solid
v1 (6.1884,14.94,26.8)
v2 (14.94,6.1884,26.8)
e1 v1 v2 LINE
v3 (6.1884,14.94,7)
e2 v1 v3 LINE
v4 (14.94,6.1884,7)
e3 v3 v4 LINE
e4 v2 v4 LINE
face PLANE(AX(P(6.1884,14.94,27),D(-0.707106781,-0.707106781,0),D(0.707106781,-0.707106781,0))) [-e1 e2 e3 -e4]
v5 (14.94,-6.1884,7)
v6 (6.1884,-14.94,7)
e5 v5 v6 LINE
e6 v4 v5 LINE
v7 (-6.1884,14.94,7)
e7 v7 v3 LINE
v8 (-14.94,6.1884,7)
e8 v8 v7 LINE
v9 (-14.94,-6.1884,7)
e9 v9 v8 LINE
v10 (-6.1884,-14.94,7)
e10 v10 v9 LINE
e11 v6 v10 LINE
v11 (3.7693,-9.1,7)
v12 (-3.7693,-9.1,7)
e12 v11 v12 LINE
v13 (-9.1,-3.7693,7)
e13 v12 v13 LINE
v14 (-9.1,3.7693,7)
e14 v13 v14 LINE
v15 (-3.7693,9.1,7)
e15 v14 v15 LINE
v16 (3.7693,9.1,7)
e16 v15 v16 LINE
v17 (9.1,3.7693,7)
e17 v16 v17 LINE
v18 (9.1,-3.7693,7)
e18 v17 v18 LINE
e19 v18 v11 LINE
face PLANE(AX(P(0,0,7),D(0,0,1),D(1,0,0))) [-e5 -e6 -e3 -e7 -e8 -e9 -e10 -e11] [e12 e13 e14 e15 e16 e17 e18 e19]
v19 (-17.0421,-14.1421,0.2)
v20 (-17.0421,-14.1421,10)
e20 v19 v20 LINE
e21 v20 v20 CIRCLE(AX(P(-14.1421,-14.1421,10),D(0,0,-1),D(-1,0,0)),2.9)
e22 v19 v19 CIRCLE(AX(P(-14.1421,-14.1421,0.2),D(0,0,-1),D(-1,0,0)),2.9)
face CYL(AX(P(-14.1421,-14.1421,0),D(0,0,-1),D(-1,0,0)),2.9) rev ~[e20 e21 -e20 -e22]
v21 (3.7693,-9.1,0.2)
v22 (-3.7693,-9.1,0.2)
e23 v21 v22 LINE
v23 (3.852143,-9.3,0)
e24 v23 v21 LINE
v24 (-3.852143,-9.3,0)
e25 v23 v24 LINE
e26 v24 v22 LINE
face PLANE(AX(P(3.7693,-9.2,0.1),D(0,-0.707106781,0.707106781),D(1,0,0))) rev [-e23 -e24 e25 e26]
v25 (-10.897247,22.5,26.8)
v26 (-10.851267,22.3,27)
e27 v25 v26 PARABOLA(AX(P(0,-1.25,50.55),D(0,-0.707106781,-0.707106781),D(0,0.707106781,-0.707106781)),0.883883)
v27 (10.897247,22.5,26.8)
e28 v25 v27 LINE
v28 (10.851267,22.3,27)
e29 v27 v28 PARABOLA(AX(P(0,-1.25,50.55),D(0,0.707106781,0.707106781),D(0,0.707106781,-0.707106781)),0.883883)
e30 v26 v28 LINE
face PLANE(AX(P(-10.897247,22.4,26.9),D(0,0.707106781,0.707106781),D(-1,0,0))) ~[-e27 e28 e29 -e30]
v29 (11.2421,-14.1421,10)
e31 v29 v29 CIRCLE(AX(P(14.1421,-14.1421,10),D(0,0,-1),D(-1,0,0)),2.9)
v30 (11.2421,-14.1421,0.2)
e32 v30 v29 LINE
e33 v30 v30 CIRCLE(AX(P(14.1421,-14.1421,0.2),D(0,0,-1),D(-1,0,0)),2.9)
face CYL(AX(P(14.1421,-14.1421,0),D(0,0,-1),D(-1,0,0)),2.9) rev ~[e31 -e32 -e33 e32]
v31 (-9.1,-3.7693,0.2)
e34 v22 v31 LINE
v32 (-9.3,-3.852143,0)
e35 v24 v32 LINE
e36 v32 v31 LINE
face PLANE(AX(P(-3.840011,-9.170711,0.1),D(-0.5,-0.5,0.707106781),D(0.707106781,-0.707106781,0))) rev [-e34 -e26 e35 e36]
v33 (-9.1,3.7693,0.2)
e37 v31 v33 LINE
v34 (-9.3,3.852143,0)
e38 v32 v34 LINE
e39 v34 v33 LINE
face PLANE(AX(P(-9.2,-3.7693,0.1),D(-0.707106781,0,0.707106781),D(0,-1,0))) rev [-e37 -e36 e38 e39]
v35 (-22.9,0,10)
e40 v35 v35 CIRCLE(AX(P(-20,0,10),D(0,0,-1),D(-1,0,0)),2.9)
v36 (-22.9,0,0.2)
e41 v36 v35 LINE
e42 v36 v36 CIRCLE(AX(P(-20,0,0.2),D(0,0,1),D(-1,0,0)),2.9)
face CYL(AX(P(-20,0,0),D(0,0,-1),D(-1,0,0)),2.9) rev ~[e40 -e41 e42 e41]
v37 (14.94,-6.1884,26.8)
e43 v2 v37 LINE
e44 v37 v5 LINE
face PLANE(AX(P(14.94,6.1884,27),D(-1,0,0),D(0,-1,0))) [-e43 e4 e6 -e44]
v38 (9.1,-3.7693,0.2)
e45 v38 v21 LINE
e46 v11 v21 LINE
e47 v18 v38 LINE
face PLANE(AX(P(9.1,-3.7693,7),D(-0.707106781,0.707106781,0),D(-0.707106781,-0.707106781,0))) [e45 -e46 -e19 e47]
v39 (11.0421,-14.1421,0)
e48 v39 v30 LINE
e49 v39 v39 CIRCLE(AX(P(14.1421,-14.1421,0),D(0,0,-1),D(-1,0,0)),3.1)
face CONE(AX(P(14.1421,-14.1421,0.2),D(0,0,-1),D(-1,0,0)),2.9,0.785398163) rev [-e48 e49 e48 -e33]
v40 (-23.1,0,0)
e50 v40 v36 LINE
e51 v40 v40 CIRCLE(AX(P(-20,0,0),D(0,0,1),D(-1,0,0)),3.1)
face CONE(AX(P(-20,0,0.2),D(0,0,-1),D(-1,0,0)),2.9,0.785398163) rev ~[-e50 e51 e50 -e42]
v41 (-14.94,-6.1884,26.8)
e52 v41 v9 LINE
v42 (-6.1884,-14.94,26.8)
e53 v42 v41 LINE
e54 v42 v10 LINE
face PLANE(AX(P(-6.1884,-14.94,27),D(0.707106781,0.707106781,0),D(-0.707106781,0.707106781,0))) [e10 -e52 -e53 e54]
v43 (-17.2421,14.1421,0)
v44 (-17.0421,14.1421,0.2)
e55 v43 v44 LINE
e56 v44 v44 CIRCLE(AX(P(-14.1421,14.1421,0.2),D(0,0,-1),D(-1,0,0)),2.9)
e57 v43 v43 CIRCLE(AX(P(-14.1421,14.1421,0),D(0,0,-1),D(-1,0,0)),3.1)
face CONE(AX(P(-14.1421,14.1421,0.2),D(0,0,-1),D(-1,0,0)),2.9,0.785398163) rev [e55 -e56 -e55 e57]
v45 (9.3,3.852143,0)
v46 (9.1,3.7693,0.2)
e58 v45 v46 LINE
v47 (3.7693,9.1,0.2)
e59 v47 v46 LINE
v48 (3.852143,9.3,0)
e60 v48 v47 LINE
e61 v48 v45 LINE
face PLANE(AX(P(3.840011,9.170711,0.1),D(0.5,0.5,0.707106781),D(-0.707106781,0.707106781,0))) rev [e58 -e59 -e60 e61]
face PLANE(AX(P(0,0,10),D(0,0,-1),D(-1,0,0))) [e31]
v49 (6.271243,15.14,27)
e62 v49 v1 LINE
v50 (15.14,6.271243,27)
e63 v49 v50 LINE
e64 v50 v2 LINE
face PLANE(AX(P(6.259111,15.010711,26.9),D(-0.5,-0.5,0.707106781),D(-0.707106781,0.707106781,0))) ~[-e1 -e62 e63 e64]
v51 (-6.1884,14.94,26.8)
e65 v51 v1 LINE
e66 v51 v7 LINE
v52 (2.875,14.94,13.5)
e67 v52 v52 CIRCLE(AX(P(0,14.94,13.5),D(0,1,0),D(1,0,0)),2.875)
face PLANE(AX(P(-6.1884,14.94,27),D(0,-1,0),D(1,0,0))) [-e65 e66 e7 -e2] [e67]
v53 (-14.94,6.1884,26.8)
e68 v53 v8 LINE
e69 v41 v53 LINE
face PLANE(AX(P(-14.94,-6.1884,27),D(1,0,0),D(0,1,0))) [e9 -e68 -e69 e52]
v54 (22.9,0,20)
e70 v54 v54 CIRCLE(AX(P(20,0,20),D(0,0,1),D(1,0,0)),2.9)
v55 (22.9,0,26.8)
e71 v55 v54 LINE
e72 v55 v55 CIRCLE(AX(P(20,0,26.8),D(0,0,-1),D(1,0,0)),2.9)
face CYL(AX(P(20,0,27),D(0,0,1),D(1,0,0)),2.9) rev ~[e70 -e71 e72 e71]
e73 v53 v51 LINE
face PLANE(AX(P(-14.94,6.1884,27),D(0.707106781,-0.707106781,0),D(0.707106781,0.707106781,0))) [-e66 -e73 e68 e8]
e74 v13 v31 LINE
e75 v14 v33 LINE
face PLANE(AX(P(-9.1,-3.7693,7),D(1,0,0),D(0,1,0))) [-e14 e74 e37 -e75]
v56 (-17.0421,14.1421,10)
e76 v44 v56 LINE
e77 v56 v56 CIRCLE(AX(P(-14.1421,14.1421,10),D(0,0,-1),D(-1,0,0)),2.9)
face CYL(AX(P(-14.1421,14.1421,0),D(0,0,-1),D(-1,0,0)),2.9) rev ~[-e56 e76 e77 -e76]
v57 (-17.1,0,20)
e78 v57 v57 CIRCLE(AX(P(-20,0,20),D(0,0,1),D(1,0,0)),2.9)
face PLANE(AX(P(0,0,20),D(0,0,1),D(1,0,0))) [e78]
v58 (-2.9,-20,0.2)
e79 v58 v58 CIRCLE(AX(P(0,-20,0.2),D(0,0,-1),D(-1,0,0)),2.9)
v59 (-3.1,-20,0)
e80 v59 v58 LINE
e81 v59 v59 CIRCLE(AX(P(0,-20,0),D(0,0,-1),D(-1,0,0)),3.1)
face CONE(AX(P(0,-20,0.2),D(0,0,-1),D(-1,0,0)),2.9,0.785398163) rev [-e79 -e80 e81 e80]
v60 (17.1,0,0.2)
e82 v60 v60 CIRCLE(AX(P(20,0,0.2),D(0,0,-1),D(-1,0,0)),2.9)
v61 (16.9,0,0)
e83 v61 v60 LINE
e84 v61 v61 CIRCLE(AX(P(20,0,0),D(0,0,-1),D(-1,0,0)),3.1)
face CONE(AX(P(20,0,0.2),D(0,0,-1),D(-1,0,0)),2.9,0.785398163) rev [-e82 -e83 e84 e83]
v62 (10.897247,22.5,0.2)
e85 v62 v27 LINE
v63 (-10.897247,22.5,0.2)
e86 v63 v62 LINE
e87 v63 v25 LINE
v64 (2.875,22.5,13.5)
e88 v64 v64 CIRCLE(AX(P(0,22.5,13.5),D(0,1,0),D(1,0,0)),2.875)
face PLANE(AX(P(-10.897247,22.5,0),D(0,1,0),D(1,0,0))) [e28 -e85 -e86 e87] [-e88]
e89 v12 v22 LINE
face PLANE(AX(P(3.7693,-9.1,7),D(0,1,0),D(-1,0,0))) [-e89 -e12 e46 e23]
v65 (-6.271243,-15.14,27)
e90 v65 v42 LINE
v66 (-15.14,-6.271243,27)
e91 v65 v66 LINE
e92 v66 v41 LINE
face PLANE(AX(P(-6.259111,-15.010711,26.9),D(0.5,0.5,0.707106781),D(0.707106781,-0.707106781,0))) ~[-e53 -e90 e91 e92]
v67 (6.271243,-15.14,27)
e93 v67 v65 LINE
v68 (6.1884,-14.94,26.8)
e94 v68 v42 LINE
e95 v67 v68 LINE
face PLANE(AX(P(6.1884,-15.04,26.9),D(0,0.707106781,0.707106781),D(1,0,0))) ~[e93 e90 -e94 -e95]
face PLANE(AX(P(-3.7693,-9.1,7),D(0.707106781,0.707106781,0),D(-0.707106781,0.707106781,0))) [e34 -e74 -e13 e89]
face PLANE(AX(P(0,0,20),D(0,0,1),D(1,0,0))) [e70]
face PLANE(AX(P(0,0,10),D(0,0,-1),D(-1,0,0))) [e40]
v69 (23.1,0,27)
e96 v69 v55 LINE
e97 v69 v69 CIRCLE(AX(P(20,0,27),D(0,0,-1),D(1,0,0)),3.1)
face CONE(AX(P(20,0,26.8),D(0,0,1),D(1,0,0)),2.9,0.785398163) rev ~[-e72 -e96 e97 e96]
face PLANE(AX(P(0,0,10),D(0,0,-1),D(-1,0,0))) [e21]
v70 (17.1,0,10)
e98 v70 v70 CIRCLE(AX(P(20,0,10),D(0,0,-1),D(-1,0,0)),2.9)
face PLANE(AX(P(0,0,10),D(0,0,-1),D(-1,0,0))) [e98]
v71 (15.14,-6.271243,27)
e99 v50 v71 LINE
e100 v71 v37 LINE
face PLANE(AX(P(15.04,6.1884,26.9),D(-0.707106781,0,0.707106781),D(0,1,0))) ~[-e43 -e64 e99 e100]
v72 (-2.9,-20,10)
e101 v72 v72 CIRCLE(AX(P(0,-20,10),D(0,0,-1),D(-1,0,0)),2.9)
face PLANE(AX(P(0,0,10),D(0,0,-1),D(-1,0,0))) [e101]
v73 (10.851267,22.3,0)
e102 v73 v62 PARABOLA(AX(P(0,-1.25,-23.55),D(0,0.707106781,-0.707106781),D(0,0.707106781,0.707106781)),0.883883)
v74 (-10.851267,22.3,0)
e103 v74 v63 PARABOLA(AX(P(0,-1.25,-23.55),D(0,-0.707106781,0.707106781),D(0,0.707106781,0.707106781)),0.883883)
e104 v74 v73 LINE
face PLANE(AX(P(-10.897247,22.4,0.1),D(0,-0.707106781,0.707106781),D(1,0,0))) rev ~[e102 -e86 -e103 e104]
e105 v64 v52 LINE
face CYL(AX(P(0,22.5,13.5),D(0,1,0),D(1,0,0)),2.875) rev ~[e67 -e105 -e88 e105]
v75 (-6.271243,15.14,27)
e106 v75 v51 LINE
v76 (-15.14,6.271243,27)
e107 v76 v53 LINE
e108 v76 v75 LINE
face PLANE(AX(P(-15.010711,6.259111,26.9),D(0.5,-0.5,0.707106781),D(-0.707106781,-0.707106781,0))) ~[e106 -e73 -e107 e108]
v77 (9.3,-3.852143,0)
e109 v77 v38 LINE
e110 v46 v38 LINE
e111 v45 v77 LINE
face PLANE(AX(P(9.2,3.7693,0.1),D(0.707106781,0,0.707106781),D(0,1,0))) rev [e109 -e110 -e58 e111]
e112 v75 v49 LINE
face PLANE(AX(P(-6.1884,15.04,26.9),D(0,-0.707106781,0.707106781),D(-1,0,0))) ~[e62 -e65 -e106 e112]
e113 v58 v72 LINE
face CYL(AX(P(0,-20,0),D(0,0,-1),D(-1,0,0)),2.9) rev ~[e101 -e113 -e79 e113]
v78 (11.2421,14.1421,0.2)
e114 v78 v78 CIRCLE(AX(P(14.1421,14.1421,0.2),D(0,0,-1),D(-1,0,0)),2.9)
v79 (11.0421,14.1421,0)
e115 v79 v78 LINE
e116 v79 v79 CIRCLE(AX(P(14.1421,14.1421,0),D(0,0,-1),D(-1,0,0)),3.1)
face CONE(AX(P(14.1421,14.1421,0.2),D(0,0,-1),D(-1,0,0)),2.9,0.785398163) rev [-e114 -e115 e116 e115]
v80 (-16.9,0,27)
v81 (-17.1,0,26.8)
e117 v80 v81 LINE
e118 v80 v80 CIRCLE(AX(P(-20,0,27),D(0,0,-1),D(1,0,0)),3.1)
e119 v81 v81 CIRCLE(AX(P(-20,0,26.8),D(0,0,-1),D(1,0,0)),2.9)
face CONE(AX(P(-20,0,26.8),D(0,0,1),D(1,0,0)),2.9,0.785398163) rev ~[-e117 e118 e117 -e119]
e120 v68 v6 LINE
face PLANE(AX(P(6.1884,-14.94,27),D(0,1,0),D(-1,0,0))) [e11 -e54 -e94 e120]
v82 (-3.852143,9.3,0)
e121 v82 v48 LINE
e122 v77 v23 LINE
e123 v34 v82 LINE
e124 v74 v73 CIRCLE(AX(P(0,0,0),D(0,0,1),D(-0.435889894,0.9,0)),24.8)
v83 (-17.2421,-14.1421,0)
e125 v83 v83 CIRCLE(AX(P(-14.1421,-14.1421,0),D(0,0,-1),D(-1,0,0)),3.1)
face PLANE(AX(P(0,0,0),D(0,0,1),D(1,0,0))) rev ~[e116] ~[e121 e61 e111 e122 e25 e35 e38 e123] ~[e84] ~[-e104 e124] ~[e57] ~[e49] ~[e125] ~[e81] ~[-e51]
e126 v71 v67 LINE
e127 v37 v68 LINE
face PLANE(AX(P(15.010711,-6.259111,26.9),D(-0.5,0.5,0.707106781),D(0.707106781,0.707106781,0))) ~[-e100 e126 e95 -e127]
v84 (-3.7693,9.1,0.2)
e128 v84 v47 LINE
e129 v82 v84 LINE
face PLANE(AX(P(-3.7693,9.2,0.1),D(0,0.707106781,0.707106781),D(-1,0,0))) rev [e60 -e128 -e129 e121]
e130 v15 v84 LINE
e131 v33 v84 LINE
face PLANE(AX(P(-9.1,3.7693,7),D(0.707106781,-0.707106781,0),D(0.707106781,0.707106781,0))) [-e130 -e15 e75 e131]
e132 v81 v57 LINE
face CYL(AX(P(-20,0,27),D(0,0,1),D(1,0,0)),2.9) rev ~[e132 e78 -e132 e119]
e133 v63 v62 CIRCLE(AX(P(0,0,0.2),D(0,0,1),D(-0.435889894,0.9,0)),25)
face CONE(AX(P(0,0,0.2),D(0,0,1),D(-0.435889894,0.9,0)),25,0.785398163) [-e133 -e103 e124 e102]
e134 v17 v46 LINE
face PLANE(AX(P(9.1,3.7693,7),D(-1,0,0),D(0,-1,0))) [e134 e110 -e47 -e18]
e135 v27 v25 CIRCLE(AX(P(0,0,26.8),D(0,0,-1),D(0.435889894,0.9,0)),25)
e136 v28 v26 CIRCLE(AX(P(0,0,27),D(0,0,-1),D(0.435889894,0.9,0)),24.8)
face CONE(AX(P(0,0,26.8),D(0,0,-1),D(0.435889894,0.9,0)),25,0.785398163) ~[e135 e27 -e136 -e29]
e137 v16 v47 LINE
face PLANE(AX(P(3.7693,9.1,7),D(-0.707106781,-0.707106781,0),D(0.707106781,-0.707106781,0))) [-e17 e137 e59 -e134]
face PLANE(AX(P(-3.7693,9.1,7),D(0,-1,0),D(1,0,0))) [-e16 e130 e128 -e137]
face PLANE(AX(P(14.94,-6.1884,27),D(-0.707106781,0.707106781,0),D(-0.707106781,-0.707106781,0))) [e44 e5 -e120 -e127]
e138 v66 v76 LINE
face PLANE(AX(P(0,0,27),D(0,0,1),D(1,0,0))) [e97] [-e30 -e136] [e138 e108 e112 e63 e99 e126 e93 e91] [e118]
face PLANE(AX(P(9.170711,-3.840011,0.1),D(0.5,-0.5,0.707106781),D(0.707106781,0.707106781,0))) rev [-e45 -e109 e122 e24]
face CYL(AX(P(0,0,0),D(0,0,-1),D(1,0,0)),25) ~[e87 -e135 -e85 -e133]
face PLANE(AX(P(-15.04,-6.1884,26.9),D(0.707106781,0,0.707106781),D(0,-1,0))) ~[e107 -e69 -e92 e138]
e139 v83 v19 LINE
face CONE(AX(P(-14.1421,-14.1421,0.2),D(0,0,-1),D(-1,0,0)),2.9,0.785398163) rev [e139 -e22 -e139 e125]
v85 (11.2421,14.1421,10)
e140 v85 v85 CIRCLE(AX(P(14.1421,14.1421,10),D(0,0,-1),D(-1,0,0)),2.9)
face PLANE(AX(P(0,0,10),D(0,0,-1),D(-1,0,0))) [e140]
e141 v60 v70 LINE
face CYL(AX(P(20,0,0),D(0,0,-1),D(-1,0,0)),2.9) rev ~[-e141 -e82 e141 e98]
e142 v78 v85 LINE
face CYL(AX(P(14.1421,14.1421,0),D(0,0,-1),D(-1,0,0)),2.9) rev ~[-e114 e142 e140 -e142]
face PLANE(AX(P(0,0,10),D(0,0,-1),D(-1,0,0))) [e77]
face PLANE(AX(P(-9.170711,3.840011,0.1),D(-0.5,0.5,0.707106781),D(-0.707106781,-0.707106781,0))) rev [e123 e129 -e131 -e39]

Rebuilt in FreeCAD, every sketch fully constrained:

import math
import FreeCAD as App
import Part
import Sketcher

V = App.Vector


def edges_at(feature, points):
    """Names of the edges that pass closest to the given points."""
    edges = feature.Shape.Edges
    near = lambda p: min(range(len(edges)), key=lambda i: edges[i].distToShape(Part.Vertex(*p))[0])
    return sorted({f"Edge{near(p) + 1}" for p in points})

doc = App.newDocument("Part")
body = doc.addObject("PartDesign::Body", "Body")

sketch1 = body.newObject("Sketcher::SketchObject", "Sketch")
sketch1.AttachmentSupport = (doc.getObject("XY_Plane"), [""])
sketch1.MapMode = "FlatFace"
sketch1.addGeometry([
    Part.ArcOfCircle(Part.Circle(V(0, 0, 0), V(0, 0, 1), 25), math.radians(116), math.radians(424)),
    Part.LineSegment(V(11, 22, 0), V(-11, 22, 0)),
], False)
sketch1.addConstraint([
    Sketcher.Constraint("Coincident", 0, 1, 1, 2),
    Sketcher.Constraint("Coincident", 1, 1, 0, 2),
    Sketcher.Constraint("Horizontal", 1),
    Sketcher.Constraint("Coincident", 0, 3, -1, 1),
    Sketcher.Constraint("Radius", 0, 25.0),
    Sketcher.Constraint("DistanceY", -1, 1, 0, 1, 22.5),
])
pad1 = body.newObject("PartDesign::Pad", "Pad")
pad1.Profile = sketch1
pad1.Length = 27

sketch2 = body.newObject("Sketcher::SketchObject", "Sketch001")
sketch2.AttachmentSupport = (doc.getObject("XZ_Plane"), [""])
sketch2.MapMode = "FlatFace"
sketch2.AttachmentOffset = App.Placement(V(0, 0, -22.5), App.Rotation())
sketch2.addGeometry(Part.Circle(V(0, 13.5, 0), V(0, 0, 1), 2.9), False)
sketch2.addConstraint([
    Sketcher.Constraint("PointOnObject", 0, 3, -2),
    Sketcher.Constraint("Diameter", 0, 5.75),
    Sketcher.Constraint("DistanceY", -1, 1, 0, 3, 13.5),
])
pocket1 = body.newObject("PartDesign::Pocket", "Pocket")
pocket1.Profile = sketch2
pocket1.Length = 15
pocket1.Reversed = True

sketch3 = body.newObject("Sketcher::SketchObject", "Sketch002")
sketch3.AttachmentSupport = (doc.getObject("XY_Plane"), [""])
sketch3.MapMode = "FlatFace"
sketch3.AttachmentOffset = App.Placement(V(0, 0, 27), App.Rotation())
sketch3.addGeometry([
    Part.LineSegment(V(6, 15, 0), V(-6, 15, 0)),
    Part.LineSegment(V(-6, 15, 0), V(-15, 6, 0)),
    Part.LineSegment(V(-15, 6, 0), V(-15, -6, 0)),
    Part.LineSegment(V(-15, -6, 0), V(-6, -15, 0)),
    Part.LineSegment(V(-6, -15, 0), V(6, -15, 0)),
    Part.LineSegment(V(6, -15, 0), V(15, -6, 0)),
    Part.LineSegment(V(15, -6, 0), V(15, 6, 0)),
    Part.LineSegment(V(15, 6, 0), V(6, 15, 0)),
], False)
sketch3.addConstraint([
    Sketcher.Constraint("Coincident", 0, 2, 1, 1),
    Sketcher.Constraint("Coincident", 1, 2, 2, 1),
    Sketcher.Constraint("Coincident", 2, 2, 3, 1),
    Sketcher.Constraint("Coincident", 3, 2, 4, 1),
    Sketcher.Constraint("Coincident", 4, 2, 5, 1),
    Sketcher.Constraint("Coincident", 5, 2, 6, 1),
    Sketcher.Constraint("Coincident", 6, 2, 7, 1),
    Sketcher.Constraint("Coincident", 7, 2, 0, 1),
    Sketcher.Constraint("Horizontal", 0),
    Sketcher.Constraint("Vertical", 2),
    Sketcher.Constraint("Horizontal", 4),
    Sketcher.Constraint("Vertical", 6),
    Sketcher.Constraint("Symmetric", 0, 2, 4, 2, -1, 1),
    Sketcher.Constraint("Symmetric", 1, 2, 5, 2, -1, 1),
    Sketcher.Constraint("Perpendicular", 1, 3),
    Sketcher.Constraint("Perpendicular", 5, 7),
    Sketcher.Constraint("Horizontal", 2, 2, 5, 2),
    Sketcher.Constraint("Horizontal", 1, 2, 6, 2),
    Sketcher.Constraint("Vertical", 0, 2, 3, 2),
    Sketcher.Constraint("Equal", 4, 2),
    Sketcher.Constraint("DistanceY", -1, 1, 0, 2, 14.94),
    Sketcher.Constraint("DistanceX", 0, 2, 0, 1, 12.3768),
])
pocket2 = body.newObject("PartDesign::Pocket", "Pocket001")
pocket2.Profile = sketch3
pocket2.Length = 20

sketch4 = body.newObject("Sketcher::SketchObject", "Sketch003")
sketch4.AttachmentSupport = (doc.getObject("XY_Plane"), [""])
sketch4.MapMode = "FlatFace"
sketch4.AttachmentOffset = App.Placement(V(0, 0, 27), App.Rotation())
sketch4.addGeometry([
    Part.Circle(V(20, 0, 0), V(0, 0, 1), 2.9),
    Part.Circle(V(-20, 0, 0), V(0, 0, 1), 2.9),
], False)
sketch4.addConstraint([
    Sketcher.Constraint("Equal", 0, 1),
    Sketcher.Constraint("Symmetric", 0, 3, 1, 3, -1, 1),
    Sketcher.Constraint("PointOnObject", 0, 3, -1),
    Sketcher.Constraint("Diameter", 0, 5.8),
    Sketcher.Constraint("DistanceX", 1, 3, 0, 3, 40.0),
])
pocket3 = body.newObject("PartDesign::Pocket", "Pocket002")
pocket3.Profile = sketch4
pocket3.Length = 7

sketch5 = body.newObject("Sketcher::SketchObject", "Sketch004")
sketch5.AttachmentSupport = (doc.getObject("XY_Plane"), [""])
sketch5.MapMode = "FlatFace"
sketch5.addGeometry([
    Part.Circle(V(-20, 0, 0), V(0, 0, 1), 2.9),
    Part.Circle(V(-14.1, 14.1, 0), V(0, 0, 1), 2.9),
    Part.Circle(V(14.1, 14.1, 0), V(0, 0, 1), 2.9),
    Part.Circle(V(20, 0, 0), V(0, 0, 1), 2.9),
    Part.Circle(V(14.1, -14.1, 0), V(0, 0, 1), 2.9),
    Part.Circle(V(0, -20, 0), V(0, 0, 1), 2.9),
    Part.Circle(V(-14.1, -14.1, 0), V(0, 0, 1), 2.9),
], False)
sketch5.addConstraint([
    Sketcher.Constraint("Equal", 0, 1),
    Sketcher.Constraint("Equal", 1, 2),
    Sketcher.Constraint("Equal", 2, 3),
    Sketcher.Constraint("Equal", 3, 4),
    Sketcher.Constraint("Equal", 4, 5),
    Sketcher.Constraint("Equal", 5, 6),
    Sketcher.Constraint("Symmetric", 0, 3, 3, 3, -1, 1),
    Sketcher.Constraint("Symmetric", 1, 3, 4, 3, -1, 1),
    Sketcher.Constraint("Symmetric", 2, 3, 6, 3, -1, 1),
    Sketcher.Constraint("Symmetric", 1, 3, 2, 3, -2),
    Sketcher.Constraint("PointOnObject", 0, 3, -1),
    Sketcher.Constraint("PointOnObject", 5, 3, -2),
    Sketcher.Constraint("Diameter", 0, 5.8),
    Sketcher.Constraint("DistanceX", 0, 3, -1, 1, 20.0),
    Sketcher.Constraint("DistanceY", 5, 3, -1, 1, 20.0),
    Sketcher.Constraint("DistanceX", 1, 3, -1, 1, 14.142),
    Sketcher.Constraint("DistanceY", -1, 1, 1, 3, 14.142),
])
pocket4 = body.newObject("PartDesign::Pocket", "Pocket003")
pocket4.Profile = sketch5
pocket4.Length = 10
pocket4.Reversed = True

sketch6 = body.newObject("Sketcher::SketchObject", "Sketch005")
sketch6.AttachmentSupport = (doc.getObject("XY_Plane"), [""])
sketch6.MapMode = "FlatFace"
sketch6.AttachmentOffset = App.Placement(V(0, 0, 7), App.Rotation())
sketch6.addGeometry([
    Part.LineSegment(V(9, 4, 0), V(4, 9, 0)),
    Part.LineSegment(V(4, 9, 0), V(-4, 9, 0)),
    Part.LineSegment(V(-4, 9, 0), V(-9, 4, 0)),
    Part.LineSegment(V(-9, 4, 0), V(-9, -4, 0)),
    Part.LineSegment(V(-9, -4, 0), V(-4, -9, 0)),
    Part.LineSegment(V(-4, -9, 0), V(4, -9, 0)),
    Part.LineSegment(V(4, -9, 0), V(9, -4, 0)),
    Part.LineSegment(V(9, -4, 0), V(9, 4, 0)),
], False)
sketch6.addConstraint([
    Sketcher.Constraint("Coincident", 0, 2, 1, 1),
    Sketcher.Constraint("Coincident", 1, 2, 2, 1),
    Sketcher.Constraint("Coincident", 2, 2, 3, 1),
    Sketcher.Constraint("Coincident", 3, 2, 4, 1),
    Sketcher.Constraint("Coincident", 4, 2, 5, 1),
    Sketcher.Constraint("Coincident", 5, 2, 6, 1),
    Sketcher.Constraint("Coincident", 6, 2, 7, 1),
    Sketcher.Constraint("Coincident", 7, 2, 0, 1),
    Sketcher.Constraint("Horizontal", 1),
    Sketcher.Constraint("Vertical", 3),
    Sketcher.Constraint("Horizontal", 5),
    Sketcher.Constraint("Vertical", 7),
    Sketcher.Constraint("Symmetric", 0, 2, 4, 2, -1, 1),
    Sketcher.Constraint("Symmetric", 2, 2, 6, 2, -1, 1),
    Sketcher.Constraint("Perpendicular", 0, 2),
    Sketcher.Constraint("Perpendicular", 2, 4),
    Sketcher.Constraint("Perpendicular", 4, 6),
    Sketcher.Constraint("Horizontal", 3, 2, 6, 2),
    Sketcher.Constraint("Vertical", 1, 2, 4, 2),
    Sketcher.Constraint("Equal", 5, 3),
    Sketcher.Constraint("DistanceY", -1, 1, 0, 2, 9.1),
    Sketcher.Constraint("DistanceX", 1, 2, 1, 1, 7.5386),
])
pocket5 = body.newObject("PartDesign::Pocket", "Pocket004")
pocket5.Profile = sketch6
pocket5.Type = "ThroughAll"
doc.recompute()

chamfer = body.newObject("PartDesign::Chamfer", "Chamfer")
chamfer.Base = (pocket5, edges_at(pocket5, [
    (9.1, 0, 0),
    (6.435, 6.435, 0),
    (0, 9.1, 0),
    (-6.435, 6.435, 0),
    (-9.1, 0, 0),
    (-6.435, -6.435, 0),
    (0, -9.1, 0),
    (6.435, -6.435, 0),
]))
chamfer.Size = 0.2
doc.recompute()

chamfer2 = body.newObject("PartDesign::Chamfer", "Chamfer001")
chamfer2.Base = (chamfer, edges_at(chamfer, [
    (17.042, 14.142, 0),
    (-11.242, 14.142, 0),
    (-17.1, 0, 0),
    (-11.242, -14.142, 0),
    (2.9, -20, 0),
    (17.042, -14.142, 0),
    (22.9, 0, 0),
    (-22.9, 0, 27),
    (17.1, 0, 27),
]))
chamfer2.Size = 0.2
doc.recompute()

chamfer3 = body.newObject("PartDesign::Chamfer", "Chamfer002")
chamfer3.Base = (chamfer2, edges_at(chamfer2, [
    (0, -25, 0),
    (0, 22.5, 0),
    (0, -25, 27),
    (0, 22.5, 27),
]))
chamfer3.Size = 0.2
doc.recompute()

chamfer4 = body.newObject("PartDesign::Chamfer", "Chamfer003")
chamfer4.Base = (chamfer3, edges_at(chamfer3, [
    (0, 14.94, 27),
    (10.564, 10.564, 27),
    (14.94, 0, 27),
    (10.564, -10.564, 27),
    (0, -14.94, 27),
    (-10.564, -10.564, 27),
    (-14.94, 0, 27),
    (-10.564, 10.564, 27),
]))
chamfer4.Size = 0.2

doc.recompute()
